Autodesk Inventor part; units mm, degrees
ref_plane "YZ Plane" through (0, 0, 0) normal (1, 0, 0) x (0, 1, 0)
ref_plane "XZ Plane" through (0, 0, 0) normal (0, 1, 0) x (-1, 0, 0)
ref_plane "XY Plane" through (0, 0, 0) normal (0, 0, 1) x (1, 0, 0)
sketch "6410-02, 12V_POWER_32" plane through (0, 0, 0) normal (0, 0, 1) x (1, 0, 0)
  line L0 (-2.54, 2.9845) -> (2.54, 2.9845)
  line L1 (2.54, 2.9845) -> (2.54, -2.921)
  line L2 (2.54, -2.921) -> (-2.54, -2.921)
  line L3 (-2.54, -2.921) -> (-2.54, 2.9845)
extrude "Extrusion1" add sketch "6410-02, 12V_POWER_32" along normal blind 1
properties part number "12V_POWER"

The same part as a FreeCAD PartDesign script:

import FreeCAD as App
import Part
import Sketcher
Q = App.Units.Quantity

doc = App.newDocument("Part")
body = doc.addObject("PartDesign::Body", "Body")

# Sketch on XY plane
sketch1 = doc.addObject("Sketcher::SketchObject", "Sketch")
body.addObject(sketch1)
sketch1.AttachmentSupport = (doc.XY_Plane, [""])
sketch1.MapMode = "FlatFace"
sketch1.addGeometry([
    Part.LineSegment(App.Vector(3, 3, 0), App.Vector(-3, 3, 0)),
    Part.LineSegment(App.Vector(-3, 3, 0), App.Vector(-3, -3, 0)),
    Part.LineSegment(App.Vector(-3, -3, 0), App.Vector(3, -3, 0)),
    Part.LineSegment(App.Vector(3, -3, 0), App.Vector(3, 3, 0)),
], False)
sketch1.addConstraint([
    Sketcher.Constraint("Coincident", 0, 2, 1, 1),
    Sketcher.Constraint("Coincident", 1, 2, 2, 1),
    Sketcher.Constraint("Coincident", 2, 2, 3, 1),
    Sketcher.Constraint("Coincident", 3, 2, 0, 1),
    Sketcher.Constraint("Horizontal", 0),
    Sketcher.Constraint("Vertical", 1),
    Sketcher.Constraint("Horizontal", 2),
    Sketcher.Constraint("Vertical", 3),
    Sketcher.Constraint("DistanceX", 0, 2, 0, 1, Q("5.08 mm")),
    Sketcher.Constraint("DistanceX", 0, 2, -1, 1, Q("2.54 mm")),
    Sketcher.Constraint("DistanceY", 1, 2, 1, 1, Q("5.9055 mm")),
    Sketcher.Constraint("DistanceY", 1, 2, -1, 1, Q("2.921 mm")),
])
pad1 = doc.addObject("PartDesign::Pad", "Pad")
body.addObject(pad1)
pad1.Profile = sketch1
pad1.Length = 1

doc.recompute()
